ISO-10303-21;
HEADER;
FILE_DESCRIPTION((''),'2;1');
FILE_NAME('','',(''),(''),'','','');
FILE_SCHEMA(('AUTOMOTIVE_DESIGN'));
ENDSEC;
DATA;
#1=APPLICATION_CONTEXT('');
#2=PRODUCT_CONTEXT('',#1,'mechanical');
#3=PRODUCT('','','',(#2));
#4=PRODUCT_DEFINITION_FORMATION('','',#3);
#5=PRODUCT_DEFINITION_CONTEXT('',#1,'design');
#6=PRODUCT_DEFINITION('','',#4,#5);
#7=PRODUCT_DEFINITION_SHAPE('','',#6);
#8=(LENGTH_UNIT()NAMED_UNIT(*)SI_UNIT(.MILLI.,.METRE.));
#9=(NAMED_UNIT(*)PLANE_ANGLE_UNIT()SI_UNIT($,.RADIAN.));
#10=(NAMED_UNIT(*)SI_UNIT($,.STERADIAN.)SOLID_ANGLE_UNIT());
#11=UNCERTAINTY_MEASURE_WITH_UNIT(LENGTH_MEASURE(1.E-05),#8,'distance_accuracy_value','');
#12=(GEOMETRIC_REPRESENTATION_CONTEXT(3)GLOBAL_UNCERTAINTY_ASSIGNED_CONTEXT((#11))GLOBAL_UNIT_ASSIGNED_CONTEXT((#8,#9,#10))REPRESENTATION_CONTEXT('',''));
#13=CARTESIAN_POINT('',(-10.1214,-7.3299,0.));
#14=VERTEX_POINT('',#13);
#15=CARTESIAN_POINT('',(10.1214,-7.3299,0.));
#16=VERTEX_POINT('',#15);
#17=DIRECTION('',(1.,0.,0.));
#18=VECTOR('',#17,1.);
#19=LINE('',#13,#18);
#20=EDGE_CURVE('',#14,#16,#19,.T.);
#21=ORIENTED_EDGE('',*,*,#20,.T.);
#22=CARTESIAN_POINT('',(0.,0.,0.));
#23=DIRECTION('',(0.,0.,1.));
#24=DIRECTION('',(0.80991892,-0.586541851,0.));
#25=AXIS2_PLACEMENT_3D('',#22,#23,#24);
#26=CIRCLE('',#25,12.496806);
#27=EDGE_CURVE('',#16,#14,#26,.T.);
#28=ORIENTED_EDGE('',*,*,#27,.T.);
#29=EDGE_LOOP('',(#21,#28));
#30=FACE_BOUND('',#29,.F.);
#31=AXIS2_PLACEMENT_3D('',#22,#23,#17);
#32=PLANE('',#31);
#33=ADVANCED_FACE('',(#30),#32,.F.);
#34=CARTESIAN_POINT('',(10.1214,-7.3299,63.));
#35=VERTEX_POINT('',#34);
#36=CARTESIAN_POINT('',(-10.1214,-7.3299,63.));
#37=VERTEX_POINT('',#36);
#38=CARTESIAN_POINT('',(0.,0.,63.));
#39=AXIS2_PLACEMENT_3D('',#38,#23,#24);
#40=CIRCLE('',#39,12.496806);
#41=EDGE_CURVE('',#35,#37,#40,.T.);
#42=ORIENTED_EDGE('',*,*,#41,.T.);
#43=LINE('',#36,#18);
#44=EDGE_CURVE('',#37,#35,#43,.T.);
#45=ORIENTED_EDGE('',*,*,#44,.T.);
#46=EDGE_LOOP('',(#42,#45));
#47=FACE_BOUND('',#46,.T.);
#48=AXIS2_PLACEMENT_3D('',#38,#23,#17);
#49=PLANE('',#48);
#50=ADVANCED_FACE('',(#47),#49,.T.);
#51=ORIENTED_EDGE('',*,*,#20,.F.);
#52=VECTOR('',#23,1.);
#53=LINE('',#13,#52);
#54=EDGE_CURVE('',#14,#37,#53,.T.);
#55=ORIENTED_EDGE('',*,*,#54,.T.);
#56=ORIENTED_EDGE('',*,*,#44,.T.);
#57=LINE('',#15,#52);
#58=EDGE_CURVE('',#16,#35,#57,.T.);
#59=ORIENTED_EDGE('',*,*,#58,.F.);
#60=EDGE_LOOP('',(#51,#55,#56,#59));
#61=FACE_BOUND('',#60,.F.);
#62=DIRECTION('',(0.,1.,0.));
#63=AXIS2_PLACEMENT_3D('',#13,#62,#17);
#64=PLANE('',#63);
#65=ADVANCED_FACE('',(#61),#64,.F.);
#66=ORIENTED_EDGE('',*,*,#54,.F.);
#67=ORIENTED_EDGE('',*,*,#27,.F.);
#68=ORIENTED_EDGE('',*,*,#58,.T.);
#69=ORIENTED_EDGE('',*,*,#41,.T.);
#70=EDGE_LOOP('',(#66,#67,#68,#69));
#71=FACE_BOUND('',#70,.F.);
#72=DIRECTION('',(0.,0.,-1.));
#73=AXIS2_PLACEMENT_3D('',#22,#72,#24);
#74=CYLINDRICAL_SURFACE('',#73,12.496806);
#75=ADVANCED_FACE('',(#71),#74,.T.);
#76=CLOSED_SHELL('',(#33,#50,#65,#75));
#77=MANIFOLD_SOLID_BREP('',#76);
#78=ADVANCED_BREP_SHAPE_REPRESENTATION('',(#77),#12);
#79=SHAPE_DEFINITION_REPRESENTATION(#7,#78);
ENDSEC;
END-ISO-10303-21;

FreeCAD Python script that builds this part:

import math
import FreeCAD as App
import Part
import Sketcher

doc = App.newDocument("Part")
body = doc.addObject("PartDesign::Body", "Body")

# Sketch on XY plane
sketch1 = body.newObject("Sketcher::SketchObject", "Sketch")
sketch1.AttachmentSupport = (doc.getObject("XY_Plane"), [""])
sketch1.MapMode = "FlatFace"
sketch1.addGeometry(Part.LineSegment(App.Vector(-10, -7, 0), App.Vector(10, -7, 0)), False)
sketch1.addGeometry(Part.ArcOfCircle(Part.Circle(App.Vector(0, 0, 0), App.Vector(0, 0, 1), 12), math.radians(-36), math.radians(216)), False)
sketch1.addConstraint(Sketcher.Constraint("Coincident", 0, 1, 1, 2))
sketch1.addConstraint(Sketcher.Constraint("Coincident", 1, 1, 0, 2))
sketch1.addConstraint(Sketcher.Constraint("Horizontal", 0))
sketch1.addConstraint(Sketcher.Constraint("Coincident", 1, 3, -1, 1))
sketch1.addConstraint(Sketcher.Constraint("Radius", 1, 12.4968))
sketch1.addConstraint(Sketcher.Constraint("DistanceY", 0, 1, -1, 1, 7.33))
pad1 = body.newObject("PartDesign::Pad", "Pad")
pad1.Profile = sketch1
pad1.Length = 63

doc.recompute()
